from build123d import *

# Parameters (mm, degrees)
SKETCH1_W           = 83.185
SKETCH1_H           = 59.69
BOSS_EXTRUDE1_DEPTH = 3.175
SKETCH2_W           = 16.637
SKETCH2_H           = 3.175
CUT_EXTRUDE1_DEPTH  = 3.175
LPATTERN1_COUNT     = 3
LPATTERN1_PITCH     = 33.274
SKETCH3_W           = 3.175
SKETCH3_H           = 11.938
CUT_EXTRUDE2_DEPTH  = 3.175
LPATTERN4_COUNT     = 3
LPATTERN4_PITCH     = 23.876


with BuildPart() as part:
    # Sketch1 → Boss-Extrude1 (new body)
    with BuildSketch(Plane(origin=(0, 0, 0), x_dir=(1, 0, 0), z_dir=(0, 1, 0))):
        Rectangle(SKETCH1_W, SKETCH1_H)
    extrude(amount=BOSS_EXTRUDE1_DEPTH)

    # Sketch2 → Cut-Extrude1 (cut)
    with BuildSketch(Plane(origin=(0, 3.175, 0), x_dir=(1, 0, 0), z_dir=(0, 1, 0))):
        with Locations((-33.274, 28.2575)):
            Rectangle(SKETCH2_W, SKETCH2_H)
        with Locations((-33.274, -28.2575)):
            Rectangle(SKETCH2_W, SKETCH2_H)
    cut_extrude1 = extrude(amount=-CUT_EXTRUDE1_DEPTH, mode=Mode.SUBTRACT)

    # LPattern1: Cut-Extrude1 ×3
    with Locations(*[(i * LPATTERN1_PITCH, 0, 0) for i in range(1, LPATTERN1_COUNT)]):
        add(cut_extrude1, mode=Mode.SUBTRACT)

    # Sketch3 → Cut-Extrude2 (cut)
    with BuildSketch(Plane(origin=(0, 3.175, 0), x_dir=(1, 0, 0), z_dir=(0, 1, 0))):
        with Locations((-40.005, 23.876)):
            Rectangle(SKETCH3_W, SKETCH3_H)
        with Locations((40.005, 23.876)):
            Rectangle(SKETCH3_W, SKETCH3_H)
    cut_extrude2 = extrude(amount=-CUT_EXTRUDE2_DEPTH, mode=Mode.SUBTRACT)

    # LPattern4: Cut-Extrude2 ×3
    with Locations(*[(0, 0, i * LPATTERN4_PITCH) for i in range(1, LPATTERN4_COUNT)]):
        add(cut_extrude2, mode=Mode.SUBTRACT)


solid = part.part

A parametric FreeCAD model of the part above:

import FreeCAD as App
import Part
import Sketcher

V = App.Vector
Q = App.Units.Quantity

doc = App.newDocument("Part")
params = doc.addObject("Spreadsheet::Sheet", "Params")
for row, (alias, value) in enumerate([
    ("sketch1_height", "2.35 in"),
    ("sketch1_width", "3.275 in"),
    ("pad1_length", "0.125 in"),
    ("sketch2_width", "0.655 in"),
    ("sketch2_height", "0.125 in"),
    ("pocket1_length", "0.125 in"),
    ("linearpattern_pitch", "1.31 in"),
    ("sketch3_height", "0.47 in"),
    ("sketch3_width", "0.125 in"),
    ("pocket2_length", "0.125 in"),
    ("linearpattern2_pitch", "0.94 in"),
], start=1):
    params.set(f"A{row}", alias)
    params.set(f"B{row}", "=" + value)
    params.setAlias(f"B{row}", alias)

body = doc.addObject("PartDesign::Body", "Body")

# Sketch on XZ plane
sketch1 = body.newObject("Sketcher::SketchObject", "Sketch")
sketch1.AttachmentSupport = (doc.getObject("XZ_Plane"), [""])
sketch1.MapMode = "FlatFace"
sketch1.addGeometry([
    Part.LineSegment(V(-42, -30, 0), V(-42, 30, 0)),
    Part.LineSegment(V(-42, 30, 0), V(42, 30, 0)),
    Part.LineSegment(V(42, 30, 0), V(42, -30, 0)),
    Part.LineSegment(V(42, -30, 0), V(-42, -30, 0)),
], False)
sketch1.addConstraint([
    Sketcher.Constraint("Coincident", 0, 2, 1, 1),
    Sketcher.Constraint("Coincident", 1, 2, 2, 1),
    Sketcher.Constraint("Coincident", 2, 2, 3, 1),
    Sketcher.Constraint("Coincident", 3, 2, 0, 1),
    Sketcher.Constraint("Vertical", 0),
    Sketcher.Constraint("Horizontal", 1),
    Sketcher.Constraint("Vertical", 2),
    Sketcher.Constraint("Horizontal", 3),
    Sketcher.Constraint("Symmetric", 0, 2, 2, 2, -1, 1),
    Sketcher.Constraint("DistanceY", 0, 1, 0, 2, Q("2.35 in")),
    Sketcher.Constraint("DistanceX", 1, 1, 1, 2, Q("3.275 in")),
])
sketch1.setExpression("Constraints[9]", "Params.sketch1_height")
sketch1.setExpression("Constraints[10]", "Params.sketch1_width")
pad1 = body.newObject("PartDesign::Pad", "Pad")
pad1.Profile = sketch1
pad1.setExpression("Length", "Params.pad1_length")
pad1.Reversed = True

# Sketch on XZ plane
sketch2 = body.newObject("Sketcher::SketchObject", "Sketch001")
sketch2.AttachmentSupport = (doc.getObject("XZ_Plane"), [""])
sketch2.MapMode = "FlatFace"
sketch2.AttachmentOffset = App.Placement(V(0, 0, -0.125 * 25.4), App.Rotation())
sketch2.addGeometry([
    Part.LineSegment(V(-41.6, -29.8, 0), V(-41.6, -26.7, 0)),  # 0
    Part.LineSegment(V(-41.6, -26.7, 0), V(-25, -26.7, 0)),  # 1
    Part.LineSegment(V(-25, -26.7, 0), V(-25, -29.8, 0)),  # 2
    Part.LineSegment(V(-25, -29.8, 0), V(-41.6, -29.8, 0)),  # 3
    Part.LineSegment(V(-41.6, 26.7, 0), V(-41.6, 29.8, 0)),  # 4
    Part.LineSegment(V(-41.6, 29.8, 0), V(-25, 29.8, 0)),  # 5
    Part.LineSegment(V(-25, 29.8, 0), V(-25, 26.7, 0)),  # 6
    Part.LineSegment(V(-25, 26.7, 0), V(-41.6, 26.7, 0)),  # 7
], False)
sketch2.addConstraint([
    Sketcher.Constraint("Coincident", 0, 2, 1, 1),
    Sketcher.Constraint("Coincident", 1, 2, 2, 1),
    Sketcher.Constraint("Coincident", 2, 2, 3, 1),
    Sketcher.Constraint("Coincident", 3, 2, 0, 1),
    Sketcher.Constraint("Coincident", 4, 2, 5, 1),
    Sketcher.Constraint("Coincident", 5, 2, 6, 1),
    Sketcher.Constraint("Coincident", 6, 2, 7, 1),
    Sketcher.Constraint("Coincident", 7, 2, 4, 1),
    Sketcher.Constraint("Vertical", 0),
    Sketcher.Constraint("Horizontal", 1),
    Sketcher.Constraint("Vertical", 2),
    Sketcher.Constraint("Horizontal", 3),
    Sketcher.Constraint("Vertical", 4),
    Sketcher.Constraint("Horizontal", 5),
    Sketcher.Constraint("Vertical", 6),
    Sketcher.Constraint("Horizontal", 7),
    Sketcher.Constraint("Symmetric", 3, 2, 4, 2, -1),
    Sketcher.Constraint("Symmetric", 1, 2, 6, 2, -1),
    Sketcher.Constraint("DistanceY", 1, 2, 6, 2, Q("2.1 in")),
    Sketcher.Constraint("DistanceX", 1, 1, 1, 2, Q("0.655 in")),
    Sketcher.Constraint("DistanceY", 0, 1, 0, 2, Q("0.125 in")),
    Sketcher.Constraint("DistanceX", 0, 2, -1, 1, Q("1.6375 in")),
])
sketch2.setExpression("Constraints[19]", "Params.sketch2_width")
sketch2.setExpression("Constraints[20]", "Params.sketch2_height")
pocket1 = body.newObject("PartDesign::Pocket", "Pocket")
pocket1.Profile = sketch2
pocket1.setExpression("Length", "Params.pocket1_length")
pocket1.Reversed = True
doc.recompute()

linearpattern = body.newObject("PartDesign::LinearPattern", "LinearPattern")
linearpattern.Originals = [pocket1]
linearpattern.Direction = (doc.getObject("X_Axis"), [""])
linearpattern.Mode = "offset"
linearpattern.setExpression("Offset", "Params.linearpattern_pitch")
linearpattern.Occurrences = 3
body.Tip = linearpattern

# Sketch on XZ plane
sketch3 = body.newObject("Sketcher::SketchObject", "Sketch002")
sketch3.AttachmentSupport = (doc.getObject("XZ_Plane"), [""])
sketch3.MapMode = "FlatFace"
sketch3.AttachmentOffset = App.Placement(V(0, 0, -0.125 * 25.4), App.Rotation())
sketch3.addGeometry([
    Part.LineSegment(V(-41.6, -29.8, 0), V(-41.6, -17.9, 0)),  # 0
    Part.LineSegment(V(-41.6, -17.9, 0), V(-38.4, -17.9, 0)),  # 1
    Part.LineSegment(V(-38.4, -17.9, 0), V(-38.4, -29.8, 0)),  # 2
    Part.LineSegment(V(-38.4, -29.8, 0), V(-41.6, -29.8, 0)),  # 3
    Part.LineSegment(V(38.4, -29.8, 0), V(38.4, -17.9, 0)),  # 4
    Part.LineSegment(V(38.4, -17.9, 0), V(41.6, -17.9, 0)),  # 5
    Part.LineSegment(V(41.6, -17.9, 0), V(41.6, -29.8, 0)),  # 6
    Part.LineSegment(V(41.6, -29.8, 0), V(38.4, -29.8, 0)),  # 7
], False)
sketch3.addConstraint([
    Sketcher.Constraint("Coincident", 0, 2, 1, 1),
    Sketcher.Constraint("Coincident", 1, 2, 2, 1),
    Sketcher.Constraint("Coincident", 2, 2, 3, 1),
    Sketcher.Constraint("Coincident", 3, 2, 0, 1),
    Sketcher.Constraint("Coincident", 4, 2, 5, 1),
    Sketcher.Constraint("Coincident", 5, 2, 6, 1),
    Sketcher.Constraint("Coincident", 6, 2, 7, 1),
    Sketcher.Constraint("Coincident", 7, 2, 4, 1),
    Sketcher.Constraint("Vertical", 0),
    Sketcher.Constraint("Horizontal", 1),
    Sketcher.Constraint("Vertical", 2),
    Sketcher.Constraint("Horizontal", 3),
    Sketcher.Constraint("Vertical", 4),
    Sketcher.Constraint("Horizontal", 5),
    Sketcher.Constraint("Vertical", 6),
    Sketcher.Constraint("Horizontal", 7),
    Sketcher.Constraint("Symmetric", 1, 2, 4, 2, -2),
    Sketcher.Constraint("Symmetric", 3, 2, 6, 2, -2),
    Sketcher.Constraint("DistanceY", 0, 1, 0, 2, Q("0.47 in")),
    Sketcher.Constraint("DistanceX", 1, 1, 1, 2, Q("0.125 in")),
    Sketcher.Constraint("DistanceX", 0, 2, 4, 2, Q("3.15 in")),
    Sketcher.Constraint("DistanceY", 0, 2, -1, 1, Q("0.705 in")),
])
sketch3.setExpression("Constraints[18]", "Params.sketch3_height")
sketch3.setExpression("Constraints[19]", "Params.sketch3_width")
pocket2 = body.newObject("PartDesign::Pocket", "Pocket001")
pocket2.Profile = sketch3
pocket2.setExpression("Length", "Params.pocket2_length")
pocket2.Reversed = True
doc.recompute()

linearpattern2 = body.newObject("PartDesign::LinearPattern", "LinearPattern001")
linearpattern2.Originals = [pocket2]
linearpattern2.Direction = (doc.getObject("Z_Axis"), [""])
linearpattern2.Mode = "offset"
linearpattern2.setExpression("Offset", "Params.linearpattern2_pitch")
linearpattern2.Occurrences = 3
body.Tip = linearpattern2

doc.recompute()
